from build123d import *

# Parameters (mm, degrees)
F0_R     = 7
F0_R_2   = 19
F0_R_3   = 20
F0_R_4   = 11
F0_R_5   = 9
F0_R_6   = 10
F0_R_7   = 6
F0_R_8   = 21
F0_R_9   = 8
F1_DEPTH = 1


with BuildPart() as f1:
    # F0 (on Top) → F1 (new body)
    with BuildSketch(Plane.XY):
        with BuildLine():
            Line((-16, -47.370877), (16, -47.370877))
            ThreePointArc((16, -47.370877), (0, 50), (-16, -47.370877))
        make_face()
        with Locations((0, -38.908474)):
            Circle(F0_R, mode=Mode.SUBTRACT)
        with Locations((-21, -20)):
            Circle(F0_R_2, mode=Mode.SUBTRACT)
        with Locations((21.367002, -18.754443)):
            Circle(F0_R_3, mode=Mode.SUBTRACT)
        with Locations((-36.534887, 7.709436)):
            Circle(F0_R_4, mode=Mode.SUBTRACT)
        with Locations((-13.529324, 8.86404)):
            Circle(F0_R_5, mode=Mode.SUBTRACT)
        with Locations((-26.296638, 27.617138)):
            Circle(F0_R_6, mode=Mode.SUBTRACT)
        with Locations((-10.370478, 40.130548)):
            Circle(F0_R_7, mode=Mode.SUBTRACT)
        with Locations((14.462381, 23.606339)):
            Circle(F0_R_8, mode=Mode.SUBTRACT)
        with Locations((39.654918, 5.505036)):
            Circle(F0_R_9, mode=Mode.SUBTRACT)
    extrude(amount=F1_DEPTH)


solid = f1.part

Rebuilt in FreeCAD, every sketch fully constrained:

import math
import FreeCAD as App
import Part
import Sketcher

V = App.Vector
Q = App.Units.Quantity

doc = App.newDocument("Part")
body = doc.addObject("PartDesign::Body", "Body")

# Sketch on XY plane
sketch1 = body.newObject("Sketcher::SketchObject", "Sketch")
sketch1.AttachmentSupport = (doc.getObject("XY_Plane"), [""])
sketch1.MapMode = "FlatFace"
sketch1.addGeometry([
    Part.LineSegment(V(-16, -47.370877, 0), V(16, -47.370877, 0)),  # 0
    Part.ArcOfCircle(Part.Circle(V(0, 0, 0), V(0, 0, 1), 50), math.radians(-71.337075), math.radians(251.337075)),  # 1
    Part.Circle(V(0, -38.908474, 0), V(0, 0, 1), 7),  # 2
    Part.Circle(V(-21, -20, 0), V(0, 0, 1), 19),  # 3
    Part.Circle(V(21.367002, -18.754443, 0), V(0, 0, 1), 20),  # 4
    Part.Circle(V(-36.534887, 7.709436, 0), V(0, 0, 1), 11),  # 5
    Part.Circle(V(-13.529324, 8.86404, 0), V(0, 0, 1), 9),  # 6
    Part.Circle(V(-26.296638, 27.617138, 0), V(0, 0, 1), 10),  # 7
    Part.Circle(V(-10.370478, 40.130548, 0), V(0, 0, 1), 6),  # 8
    Part.Circle(V(39.654918, 5.505036, 0), V(0, 0, 1), 8),  # 9
    Part.Circle(V(14.462381, 23.606339, 0), V(0, 0, 1), 21),  # 10
], False)
sketch1.addConstraint([
    Sketcher.Constraint("Coincident", 0, 1, 1, 2),
    Sketcher.Constraint("Coincident", 1, 1, 0, 2),
    Sketcher.Constraint("Horizontal", 0),
    Sketcher.Constraint("Coincident", 1, 3, -1, 1),
    Sketcher.Constraint("PointOnObject", 2, 3, -2),
    Sketcher.Constraint("Diameter", 2, Q("14 mm")),
    Sketcher.Constraint("Diameter", 3, Q("38 mm")),
    Sketcher.Constraint("Diameter", 4, Q("40 mm")),
    Sketcher.Constraint("Diameter", 5, Q("22 mm")),
    Sketcher.Constraint("Diameter", 6, Q("18 mm")),
    Sketcher.Constraint("Diameter", 7, Q("20 mm")),
    Sketcher.Constraint("Diameter", 8, Q("12 mm")),
    Sketcher.Constraint("Diameter", 9, Q("16 mm")),
    Sketcher.Constraint("Diameter", 10, Q("42 mm")),
    Sketcher.Constraint("Radius", 1, Q("50 mm")),
    Sketcher.Constraint("DistanceX", 0, 1, 0, 2, Q("32 mm")),
    Sketcher.Constraint("DistanceX", 3, 3, -1, 1, Q("21 mm")),
    Sketcher.Constraint("DistanceY", 3, 3, -1, 1, Q("20 mm")),
    Sketcher.Constraint("DistanceX", -1, 1, 4, 3, Q("21.367002 mm")),
    Sketcher.Constraint("DistanceY", 6, 3, 7, 3, Q("18.753098 mm")),
    Sketcher.Constraint("DistanceY", 6, 3, 10, 3, Q("14.742299 mm")),
    Sketcher.Constraint("DistanceY", -1, 1, 6, 3, Q("8.86404 mm")),
    Sketcher.Constraint("DistanceX", 7, 3, -1, 1, Q("26.296638 mm")),
    Sketcher.Constraint("DistanceX", -1, 1, 9, 3, Q("39.654918 mm")),
    Sketcher.Constraint("DistanceX", -1, 1, 10, 3, Q("14.462381 mm")),
    Sketcher.Constraint("DistanceY", 2, 3, 4, 3, Q("20.154031 mm")),
    Sketcher.Constraint("DistanceY", 2, 3, 5, 3, Q("46.61791 mm")),
    Sketcher.Constraint("DistanceX", 5, 3, 4, 3, Q("57.901889 mm")),
    Sketcher.Constraint("DistanceY", 4, 3, 7, 3, Q("46.371581 mm")),
    Sketcher.Constraint("DistanceX", 7, 3, 8, 3, Q("15.92616 mm")),
    Sketcher.Constraint("DistanceY", 7, 3, 8, 3, Q("12.51341 mm")),
    Sketcher.Constraint("DistanceY", 4, 3, 9, 3, Q("24.259479 mm")),
    Sketcher.Constraint("DistanceX", 6, 3, -1, 1, Q("13.529324 mm")),
])
pad1 = body.newObject("PartDesign::Pad", "Pad")
pad1.Profile = sketch1
pad1.Length = 1

doc.recompute()
